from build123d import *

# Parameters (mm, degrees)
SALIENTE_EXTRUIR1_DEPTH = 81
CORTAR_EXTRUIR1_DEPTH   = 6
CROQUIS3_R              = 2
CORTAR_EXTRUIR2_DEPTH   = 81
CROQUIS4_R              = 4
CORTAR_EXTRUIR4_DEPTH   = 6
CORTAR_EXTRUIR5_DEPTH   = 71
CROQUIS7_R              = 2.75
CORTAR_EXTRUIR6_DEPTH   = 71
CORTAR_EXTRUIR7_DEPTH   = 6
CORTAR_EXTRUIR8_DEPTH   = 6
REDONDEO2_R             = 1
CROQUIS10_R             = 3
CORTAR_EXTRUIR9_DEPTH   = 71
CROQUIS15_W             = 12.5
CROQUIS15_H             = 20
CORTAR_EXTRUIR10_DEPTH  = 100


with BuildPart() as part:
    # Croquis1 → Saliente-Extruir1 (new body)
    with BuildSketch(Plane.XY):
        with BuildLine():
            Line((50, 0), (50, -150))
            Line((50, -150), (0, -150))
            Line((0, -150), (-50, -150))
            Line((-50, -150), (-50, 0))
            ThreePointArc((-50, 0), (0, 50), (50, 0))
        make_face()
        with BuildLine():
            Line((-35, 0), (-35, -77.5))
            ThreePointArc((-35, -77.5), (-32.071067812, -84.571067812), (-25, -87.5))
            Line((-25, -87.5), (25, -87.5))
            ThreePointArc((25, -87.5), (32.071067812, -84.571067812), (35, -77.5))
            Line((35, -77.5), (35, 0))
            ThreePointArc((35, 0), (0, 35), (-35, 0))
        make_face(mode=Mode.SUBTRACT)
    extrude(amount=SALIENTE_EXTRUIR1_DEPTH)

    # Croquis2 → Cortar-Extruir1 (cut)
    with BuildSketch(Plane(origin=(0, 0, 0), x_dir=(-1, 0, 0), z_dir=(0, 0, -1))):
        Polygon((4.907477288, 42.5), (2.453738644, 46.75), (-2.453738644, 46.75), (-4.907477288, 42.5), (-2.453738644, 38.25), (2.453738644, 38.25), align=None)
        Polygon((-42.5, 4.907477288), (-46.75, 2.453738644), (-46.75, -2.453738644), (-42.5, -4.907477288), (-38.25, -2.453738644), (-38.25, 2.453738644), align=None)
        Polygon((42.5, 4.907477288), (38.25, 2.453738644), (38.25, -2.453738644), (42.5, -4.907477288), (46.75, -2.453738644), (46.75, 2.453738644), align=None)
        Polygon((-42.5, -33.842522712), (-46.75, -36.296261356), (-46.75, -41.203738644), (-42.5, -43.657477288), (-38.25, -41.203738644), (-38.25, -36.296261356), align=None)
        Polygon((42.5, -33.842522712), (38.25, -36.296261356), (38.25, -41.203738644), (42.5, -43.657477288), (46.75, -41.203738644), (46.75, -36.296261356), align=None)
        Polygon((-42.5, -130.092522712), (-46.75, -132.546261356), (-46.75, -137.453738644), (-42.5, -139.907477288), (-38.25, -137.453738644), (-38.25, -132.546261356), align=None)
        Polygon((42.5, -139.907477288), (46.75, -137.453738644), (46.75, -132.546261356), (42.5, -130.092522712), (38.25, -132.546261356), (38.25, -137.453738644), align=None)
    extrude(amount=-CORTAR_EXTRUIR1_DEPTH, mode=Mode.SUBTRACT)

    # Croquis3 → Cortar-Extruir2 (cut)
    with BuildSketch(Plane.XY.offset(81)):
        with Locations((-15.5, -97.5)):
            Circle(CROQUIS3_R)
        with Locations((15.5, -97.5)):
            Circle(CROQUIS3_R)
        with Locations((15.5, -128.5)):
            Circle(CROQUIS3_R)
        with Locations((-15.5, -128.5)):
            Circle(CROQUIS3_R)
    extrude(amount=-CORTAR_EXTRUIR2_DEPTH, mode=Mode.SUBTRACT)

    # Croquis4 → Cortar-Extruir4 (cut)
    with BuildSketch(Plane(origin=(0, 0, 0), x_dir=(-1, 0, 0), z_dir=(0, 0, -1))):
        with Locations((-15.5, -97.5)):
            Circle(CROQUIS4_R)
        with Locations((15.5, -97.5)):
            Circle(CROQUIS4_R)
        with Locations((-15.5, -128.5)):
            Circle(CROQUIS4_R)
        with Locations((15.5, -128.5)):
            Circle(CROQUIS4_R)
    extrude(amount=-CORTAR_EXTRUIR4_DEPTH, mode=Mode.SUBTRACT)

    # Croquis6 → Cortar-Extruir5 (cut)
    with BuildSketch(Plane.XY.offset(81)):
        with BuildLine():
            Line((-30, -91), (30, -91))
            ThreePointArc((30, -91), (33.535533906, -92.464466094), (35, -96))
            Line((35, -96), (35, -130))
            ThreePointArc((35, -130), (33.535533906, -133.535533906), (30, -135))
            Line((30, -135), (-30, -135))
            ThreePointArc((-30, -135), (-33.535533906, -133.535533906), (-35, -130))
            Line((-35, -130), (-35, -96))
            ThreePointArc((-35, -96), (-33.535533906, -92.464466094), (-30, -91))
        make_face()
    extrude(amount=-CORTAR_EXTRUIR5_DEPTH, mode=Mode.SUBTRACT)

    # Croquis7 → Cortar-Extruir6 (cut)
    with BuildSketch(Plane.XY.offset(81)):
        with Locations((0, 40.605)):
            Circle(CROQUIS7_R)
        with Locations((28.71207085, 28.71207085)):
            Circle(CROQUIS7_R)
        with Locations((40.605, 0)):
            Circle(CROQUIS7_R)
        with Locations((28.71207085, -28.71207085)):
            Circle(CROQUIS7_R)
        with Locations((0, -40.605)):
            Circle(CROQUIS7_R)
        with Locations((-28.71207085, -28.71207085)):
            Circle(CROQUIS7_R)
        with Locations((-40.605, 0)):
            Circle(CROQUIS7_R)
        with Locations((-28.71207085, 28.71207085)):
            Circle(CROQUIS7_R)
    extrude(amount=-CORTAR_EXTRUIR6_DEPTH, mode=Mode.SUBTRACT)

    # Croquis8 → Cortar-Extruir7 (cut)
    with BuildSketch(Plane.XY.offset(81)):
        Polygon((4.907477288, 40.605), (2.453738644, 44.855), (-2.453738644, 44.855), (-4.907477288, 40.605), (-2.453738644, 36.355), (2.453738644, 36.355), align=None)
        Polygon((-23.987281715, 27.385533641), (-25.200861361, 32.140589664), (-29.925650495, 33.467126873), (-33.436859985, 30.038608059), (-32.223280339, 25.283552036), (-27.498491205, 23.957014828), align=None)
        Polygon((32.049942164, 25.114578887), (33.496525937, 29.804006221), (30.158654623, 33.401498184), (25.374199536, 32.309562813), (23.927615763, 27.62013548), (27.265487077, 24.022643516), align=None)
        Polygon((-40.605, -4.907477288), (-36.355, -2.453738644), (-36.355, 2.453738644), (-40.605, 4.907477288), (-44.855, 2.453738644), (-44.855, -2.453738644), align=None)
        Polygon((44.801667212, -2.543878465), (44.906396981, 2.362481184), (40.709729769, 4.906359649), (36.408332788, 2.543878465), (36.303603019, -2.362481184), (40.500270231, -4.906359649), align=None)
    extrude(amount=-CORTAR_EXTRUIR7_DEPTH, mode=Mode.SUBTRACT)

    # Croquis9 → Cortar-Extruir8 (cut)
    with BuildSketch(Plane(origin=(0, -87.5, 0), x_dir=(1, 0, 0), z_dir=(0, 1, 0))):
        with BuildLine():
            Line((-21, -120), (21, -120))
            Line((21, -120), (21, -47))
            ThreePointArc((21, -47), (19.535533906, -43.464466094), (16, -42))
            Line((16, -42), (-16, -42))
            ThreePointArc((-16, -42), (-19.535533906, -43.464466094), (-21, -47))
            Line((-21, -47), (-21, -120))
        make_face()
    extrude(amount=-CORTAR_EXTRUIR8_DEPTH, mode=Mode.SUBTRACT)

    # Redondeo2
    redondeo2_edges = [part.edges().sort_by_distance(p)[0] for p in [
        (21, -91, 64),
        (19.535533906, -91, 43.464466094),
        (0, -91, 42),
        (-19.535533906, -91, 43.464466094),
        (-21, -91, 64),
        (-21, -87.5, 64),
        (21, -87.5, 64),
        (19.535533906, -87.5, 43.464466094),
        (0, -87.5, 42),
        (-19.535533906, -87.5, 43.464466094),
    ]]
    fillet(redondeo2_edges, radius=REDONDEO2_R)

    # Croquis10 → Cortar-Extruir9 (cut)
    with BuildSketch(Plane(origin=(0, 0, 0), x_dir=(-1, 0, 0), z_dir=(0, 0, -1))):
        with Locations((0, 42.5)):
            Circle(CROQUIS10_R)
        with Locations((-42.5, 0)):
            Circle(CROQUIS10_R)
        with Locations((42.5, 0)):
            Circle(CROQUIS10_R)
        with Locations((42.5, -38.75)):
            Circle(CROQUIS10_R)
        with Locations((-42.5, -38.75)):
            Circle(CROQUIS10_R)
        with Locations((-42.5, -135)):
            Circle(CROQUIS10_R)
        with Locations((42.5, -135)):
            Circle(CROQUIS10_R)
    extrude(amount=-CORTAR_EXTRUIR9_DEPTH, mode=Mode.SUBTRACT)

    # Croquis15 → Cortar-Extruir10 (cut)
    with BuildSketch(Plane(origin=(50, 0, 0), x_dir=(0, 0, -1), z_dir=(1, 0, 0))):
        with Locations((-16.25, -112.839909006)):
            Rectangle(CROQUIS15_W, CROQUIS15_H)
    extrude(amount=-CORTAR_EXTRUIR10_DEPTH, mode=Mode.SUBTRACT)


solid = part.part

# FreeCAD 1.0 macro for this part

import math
import FreeCAD as App
import Part
import Sketcher

V = App.Vector
Q = App.Units.Quantity


def edges_at(feature, points):
    """Names of the edges that pass closest to the given points."""
    edges = feature.Shape.Edges
    near = lambda p: min(range(len(edges)), key=lambda i: edges[i].distToShape(Part.Vertex(*p))[0])
    return sorted({f"Edge{near(p) + 1}" for p in points})

doc = App.newDocument("Part")
body = doc.addObject("PartDesign::Body", "Body")

# Sketch on XY plane
sketch1 = body.newObject("Sketcher::SketchObject", "Sketch")
sketch1.AttachmentSupport = (doc.getObject("XY_Plane"), [""])
sketch1.MapMode = "FlatFace"
sketch1.addGeometry(Part.LineSegment(V(50, -150, 0), V(50, 0, 0)), False)
sketch1.addGeometry(Part.ArcOfCircle(Part.Circle(V(0, 0, 0), V(0, 0, 1), 50), math.radians(0), math.radians(180)), False)
sketch1.addGeometry(Part.LineSegment(V(-50, 0, 0), V(-50, -150, 0)), False)
sketch1.addGeometry(Part.LineSegment(V(-50, -150, 0), V(50, -150, 0)), False)
sketch1.addGeometry(Part.ArcOfCircle(Part.Circle(V(0, 0, 0), V(0, 0, 1), 35), math.radians(0), math.radians(180)), False)
sketch1.addGeometry(Part.LineSegment(V(35, 0, 0), V(35, -78, 0)), False)
sketch1.addGeometry(Part.ArcOfCircle(Part.Circle(V(25, -78, 0), V(0, 0, 1), 10), math.radians(-90), math.radians(0)), False)
sketch1.addGeometry(Part.LineSegment(V(25, -88, 0), V(-25, -88, 0)), False)
sketch1.addGeometry(Part.ArcOfCircle(Part.Circle(V(-25, -78, 0), V(0, 0, 1), 10), math.radians(180), math.radians(270)), False)
sketch1.addGeometry(Part.LineSegment(V(-35, -78, 0), V(-35, 0, 0)), False)
sketch1.addConstraint(Sketcher.Constraint("Tangent", 0, 2, 1, 1))
sketch1.addConstraint(Sketcher.Constraint("Tangent", 1, 2, 2, 1))
sketch1.addConstraint(Sketcher.Constraint("Coincident", 2, 2, 3, 1))
sketch1.addConstraint(Sketcher.Constraint("Coincident", 3, 2, 0, 1))
sketch1.addConstraint(Sketcher.Constraint("Tangent", 4, 1, 5, 1))
sketch1.addConstraint(Sketcher.Constraint("Tangent", 5, 2, 6, 2))
sketch1.addConstraint(Sketcher.Constraint("Tangent", 6, 1, 7, 1))
sketch1.addConstraint(Sketcher.Constraint("Tangent", 7, 2, 8, 2))
sketch1.addConstraint(Sketcher.Constraint("Tangent", 8, 1, 9, 1))
sketch1.addConstraint(Sketcher.Constraint("Tangent", 9, 2, 4, 2))
sketch1.addConstraint(Sketcher.Constraint("Vertical", 0))
sketch1.addConstraint(Sketcher.Constraint("Vertical", 2))
sketch1.addConstraint(Sketcher.Constraint("Horizontal", 3))
sketch1.addConstraint(Sketcher.Constraint("Vertical", 5))
sketch1.addConstraint(Sketcher.Constraint("Horizontal", 7))
sketch1.addConstraint(Sketcher.Constraint("Vertical", 9))
sketch1.addConstraint(Sketcher.Constraint("Coincident", 1, 3, -1, 1))
sketch1.addConstraint(Sketcher.Constraint("Coincident", 4, 3, -1, 1))
sketch1.addConstraint(Sketcher.Constraint("Equal", 6, 8))
sketch1.addConstraint(Sketcher.Constraint("Radius", 1, 50.0))
sketch1.addConstraint(Sketcher.Constraint("Radius", 4, 35.0))
sketch1.addConstraint(Sketcher.Constraint("Radius", 6, 10.0))
sketch1.addConstraint(Sketcher.Constraint("DistanceY", 0, 1, 0, 2, 150.0))
sketch1.addConstraint(Sketcher.Constraint("DistanceY", 5, 2, 5, 1, 77.5))
pad1 = body.newObject("PartDesign::Pad", "Pad")
pad1.Profile = sketch1
pad1.Length = 81

# Sketch on XY plane
sketch2 = body.newObject("Sketcher::SketchObject", "Sketch001")
sketch2.AttachmentSupport = (doc.getObject("XY_Plane"), [""])
sketch2.MapMode = "FlatFace"
sketch2.addGeometry(Part.LineSegment(V(-4.9, 42.5, 0), V(-2.5, 46.8, 0)), False)
sketch2.addGeometry(Part.LineSegment(V(-2.5, 46.8, 0), V(2.5, 46.8, 0)), False)
sketch2.addGeometry(Part.LineSegment(V(2.5, 46.8, 0), V(4.9, 42.5, 0)), False)
sketch2.addGeometry(Part.LineSegment(V(4.9, 42.5, 0), V(2.5, 38.2, 0)), False)
sketch2.addGeometry(Part.LineSegment(V(2.5, 38.2, 0), V(-2.5, 38.2, 0)), False)
sketch2.addGeometry(Part.LineSegment(V(-2.5, 38.2, 0), V(-4.9, 42.5, 0)), False)
sketch2.addGeometry(Part.LineSegment(V(42.5, 4.9, 0), V(46.8, 2.5, 0)), False)
sketch2.addGeometry(Part.LineSegment(V(46.8, 2.5, 0), V(46.8, -2.5, 0)), False)
sketch2.addGeometry(Part.LineSegment(V(46.8, -2.5, 0), V(42.5, -4.9, 0)), False)
sketch2.addGeometry(Part.LineSegment(V(42.5, -4.9, 0), V(38.2, -2.5, 0)), False)
sketch2.addGeometry(Part.LineSegment(V(38.2, -2.5, 0), V(38.2, 2.5, 0)), False)
sketch2.addGeometry(Part.LineSegment(V(38.2, 2.5, 0), V(42.5, 4.9, 0)), False)
sketch2.addGeometry(Part.LineSegment(V(-42.5, 4.9, 0), V(-38.2, 2.5, 0)), False)
sketch2.addGeometry(Part.LineSegment(V(-38.2, 2.5, 0), V(-38.2, -2.5, 0)), False)
sketch2.addGeometry(Part.LineSegment(V(-38.2, -2.5, 0), V(-42.5, -4.9, 0)), False)
sketch2.addGeometry(Part.LineSegment(V(-42.5, -4.9, 0), V(-46.8, -2.5, 0)), False)
sketch2.addGeometry(Part.LineSegment(V(-46.8, -2.5, 0), V(-46.8, 2.5, 0)), False)
sketch2.addGeometry(Part.LineSegment(V(-46.8, 2.5, 0), V(-42.5, 4.9, 0)), False)
sketch2.addGeometry(Part.LineSegment(V(42.5, -33.8, 0), V(46.8, -36.3, 0)), False)
sketch2.addGeometry(Part.LineSegment(V(46.8, -36.3, 0), V(46.8, -41.2, 0)), False)
sketch2.addGeometry(Part.LineSegment(V(46.8, -41.2, 0), V(42.5, -43.7, 0)), False)
sketch2.addGeometry(Part.LineSegment(V(42.5, -43.7, 0), V(38.2, -41.2, 0)), False)
sketch2.addGeometry(Part.LineSegment(V(38.2, -41.2, 0), V(38.2, -36.3, 0)), False)
sketch2.addGeometry(Part.LineSegment(V(38.2, -36.3, 0), V(42.5, -33.8, 0)), False)
sketch2.addGeometry(Part.LineSegment(V(-42.5, -33.8, 0), V(-38.2, -36.3, 0)), False)
sketch2.addGeometry(Part.LineSegment(V(-38.2, -36.3, 0), V(-38.2, -41.2, 0)), False)
sketch2.addGeometry(Part.LineSegment(V(-38.2, -41.2, 0), V(-42.5, -43.7, 0)), False)
sketch2.addGeometry(Part.LineSegment(V(-42.5, -43.7, 0), V(-46.8, -41.2, 0)), False)
sketch2.addGeometry(Part.LineSegment(V(-46.8, -41.2, 0), V(-46.8, -36.3, 0)), False)
sketch2.addGeometry(Part.LineSegment(V(-46.8, -36.3, 0), V(-42.5, -33.8, 0)), False)
sketch2.addGeometry(Part.LineSegment(V(42.5, -130.1, 0), V(46.8, -132.5, 0)), False)
sketch2.addGeometry(Part.LineSegment(V(46.8, -132.5, 0), V(46.8, -137.5, 0)), False)
sketch2.addGeometry(Part.LineSegment(V(46.8, -137.5, 0), V(42.5, -139.9, 0)), False)
sketch2.addGeometry(Part.LineSegment(V(42.5, -139.9, 0), V(38.2, -137.5, 0)), False)
sketch2.addGeometry(Part.LineSegment(V(38.2, -137.5, 0), V(38.2, -132.5, 0)), False)
sketch2.addGeometry(Part.LineSegment(V(38.2, -132.5, 0), V(42.5, -130.1, 0)), False)
sketch2.addGeometry(Part.LineSegment(V(-42.5, -139.9, 0), V(-46.8, -137.5, 0)), False)
sketch2.addGeometry(Part.LineSegment(V(-46.8, -137.5, 0), V(-46.8, -132.5, 0)), False)
sketch2.addGeometry(Part.LineSegment(V(-46.8, -132.5, 0), V(-42.5, -130.1, 0)), False)
sketch2.addGeometry(Part.LineSegment(V(-42.5, -130.1, 0), V(-38.2, -132.5, 0)), False)
sketch2.addGeometry(Part.LineSegment(V(-38.2, -132.5, 0), V(-38.2, -137.5, 0)), False)
sketch2.addGeometry(Part.LineSegment(V(-38.2, -137.5, 0), V(-42.5, -139.9, 0)), False)
sketch2.addConstraint(Sketcher.Constraint("Coincident", 0, 2, 1, 1))
sketch2.addConstraint(Sketcher.Constraint("Coincident", 1, 2, 2, 1))
sketch2.addConstraint(Sketcher.Constraint("Coincident", 2, 2, 3, 1))
sketch2.addConstraint(Sketcher.Constraint("Coincident", 3, 2, 4, 1))
sketch2.addConstraint(Sketcher.Constraint("Coincident", 4, 2, 5, 1))
sketch2.addConstraint(Sketcher.Constraint("Coincident", 5, 2, 0, 1))
sketch2.addConstraint(Sketcher.Constraint("Coincident", 6, 2, 7, 1))
sketch2.addConstraint(Sketcher.Constraint("Coincident", 7, 2, 8, 1))
sketch2.addConstraint(Sketcher.Constraint("Coincident", 8, 2, 9, 1))
sketch2.addConstraint(Sketcher.Constraint("Coincident", 9, 2, 10, 1))
sketch2.addConstraint(Sketcher.Constraint("Coincident", 10, 2, 11, 1))
sketch2.addConstraint(Sketcher.Constraint("Coincident", 11, 2, 6, 1))
sketch2.addConstraint(Sketcher.Constraint("Coincident", 12, 2, 13, 1))
sketch2.addConstraint(Sketcher.Constraint("Coincident", 13, 2, 14, 1))
sketch2.addConstraint(Sketcher.Constraint("Coincident", 14, 2, 15, 1))
sketch2.addConstraint(Sketcher.Constraint("Coincident", 15, 2, 16, 1))
sketch2.addConstraint(Sketcher.Constraint("Coincident", 16, 2, 17, 1))
sketch2.addConstraint(Sketcher.Constraint("Coincident", 17, 2, 12, 1))
sketch2.addConstraint(Sketcher.Constraint("Coincident", 18, 2, 19, 1))
sketch2.addConstraint(Sketcher.Constraint("Coincident", 19, 2, 20, 1))
sketch2.addConstraint(Sketcher.Constraint("Coincident", 20, 2, 21, 1))
sketch2.addConstraint(Sketcher.Constraint("Coincident", 21, 2, 22, 1))
sketch2.addConstraint(Sketcher.Constraint("Coincident", 22, 2, 23, 1))
sketch2.addConstraint(Sketcher.Constraint("Coincident", 23, 2, 18, 1))
sketch2.addConstraint(Sketcher.Constraint("Coincident", 24, 2, 25, 1))
sketch2.addConstraint(Sketcher.Constraint("Coincident", 25, 2, 26, 1))
sketch2.addConstraint(Sketcher.Constraint("Coincident", 26, 2, 27, 1))
sketch2.addConstraint(Sketcher.Constraint("Coincident", 27, 2, 28, 1))
sketch2.addConstraint(Sketcher.Constraint("Coincident", 28, 2, 29, 1))
sketch2.addConstraint(Sketcher.Constraint("Coincident", 29, 2, 24, 1))
sketch2.addConstraint(Sketcher.Constraint("Coincident", 30, 2, 31, 1))
sketch2.addConstraint(Sketcher.Constraint("Coincident", 31, 2, 32, 1))
sketch2.addConstraint(Sketcher.Constraint("Coincident", 32, 2, 33, 1))
sketch2.addConstraint(Sketcher.Constraint("Coincident", 33, 2, 34, 1))
sketch2.addConstraint(Sketcher.Constraint("Coincident", 34, 2, 35, 1))
sketch2.addConstraint(Sketcher.Constraint("Coincident", 35, 2, 30, 1))
sketch2.addConstraint(Sketcher.Constraint("Coincident", 36, 2, 37, 1))
sketch2.addConstraint(Sketcher.Constraint("Coincident", 37, 2, 38, 1))
sketch2.addConstraint(Sketcher.Constraint("Coincident", 38, 2, 39, 1))
sketch2.addConstraint(Sketcher.Constraint("Coincident", 39, 2, 40, 1))
sketch2.addConstraint(Sketcher.Constraint("Coincident", 40, 2, 41, 1))
sketch2.addConstraint(Sketcher.Constraint("Coincident", 41, 2, 36, 1))
sketch2.addConstraint(Sketcher.Constraint("Horizontal", 1))
sketch2.addConstraint(Sketcher.Constraint("Horizontal", 4))
sketch2.addConstraint(Sketcher.Constraint("Vertical", 7))
sketch2.addConstraint(Sketcher.Constraint("Vertical", 10))
sketch2.addConstraint(Sketcher.Constraint("Vertical", 13))
sketch2.addConstraint(Sketcher.Constraint("Vertical", 16))
sketch2.addConstraint(Sketcher.Constraint("Vertical", 19))
sketch2.addConstraint(Sketcher.Constraint("Vertical", 22))
sketch2.addConstraint(Sketcher.Constraint("Vertical", 25))
sketch2.addConstraint(Sketcher.Constraint("Vertical", 28))
sketch2.addConstraint(Sketcher.Constraint("Vertical", 31))
sketch2.addConstraint(Sketcher.Constraint("Vertical", 34))
sketch2.addConstraint(Sketcher.Constraint("Vertical", 37))
sketch2.addConstraint(Sketcher.Constraint("Vertical", 40))
sketch2.addConstraint(Sketcher.Constraint("Symmetric", 9, 2, 12, 2, -1, 1))
sketch2.addConstraint(Sketcher.Constraint("Symmetric", 11, 2, 14, 2, -1, 1))
sketch2.addConstraint(Sketcher.Constraint("Symmetric", 6, 2, 15, 2, -1, 1))
sketch2.addConstraint(Sketcher.Constraint("Symmetric", 8, 2, 17, 2, -1, 1))
sketch2.addConstraint(Sketcher.Constraint("Symmetric", 2, 2, 5, 2, -2))
sketch2.addConstraint(Sketcher.Constraint("Symmetric", 8, 2, 14, 2, -2))
sketch2.addConstraint(Sketcher.Constraint("Symmetric", 22, 2, 24, 2, -2))
sketch2.addConstraint(Sketcher.Constraint("Symmetric", 20, 2, 26, 2, -2))
sketch2.addConstraint(Sketcher.Constraint("Symmetric", 19, 2, 27, 2, -2))
sketch2.addConstraint(Sketcher.Constraint("Symmetric", 23, 2, 29, 2, -2))
sketch2.addConstraint(Sketcher.Constraint("Symmetric", 31, 2, 36, 2, -2))
sketch2.addConstraint(Sketcher.Constraint("Symmetric", 35, 2, 38, 2, -2))
sketch2.addConstraint(Sketcher.Constraint("Symmetric", 34, 2, 39, 2, -2))
sketch2.addConstraint(Sketcher.Constraint("Symmetric", 32, 2, 41, 2, -2))
sketch2.addConstraint(Sketcher.Constraint("Parallel", 0, 3))
sketch2.addConstraint(Sketcher.Constraint("Parallel", 2, 5))
sketch2.addConstraint(Sketcher.Constraint("Perpendicular", 3, 6))
sketch2.addConstraint(Sketcher.Constraint("Perpendicular", 5, 8))
sketch2.addConstraint(Sketcher.Constraint("Parallel", 6, 9))
sketch2.addConstraint(Sketcher.Constraint("Parallel", 8, 11))
sketch2.addConstraint(Sketcher.Constraint("Parallel", 11, 14))
sketch2.addConstraint(Sketcher.Constraint("Parallel", 14, 17))
sketch2.addConstraint(Sketcher.Constraint("Parallel", 15, 18))
sketch2.addConstraint(Sketcher.Constraint("Parallel", 17, 20))
sketch2.addConstraint(Sketcher.Constraint("Parallel", 18, 21))
sketch2.addConstraint(Sketcher.Constraint("Parallel", 20, 23))
sketch2.addConstraint(Sketcher.Constraint("Parallel", 21, 24))
sketch2.addConstraint(Sketcher.Constraint("Parallel", 23, 26))
sketch2.addConstraint(Sketcher.Constraint("Parallel", 26, 29))
sketch2.addConstraint(Sketcher.Constraint("Parallel", 27, 30))
sketch2.addConstraint(Sketcher.Constraint("Parallel", 29, 32))
sketch2.addConstraint(Sketcher.Constraint("Parallel", 30, 33))
sketch2.addConstraint(Sketcher.Constraint("Parallel", 32, 35))
sketch2.addConstraint(Sketcher.Constraint("Parallel", 35, 38))
sketch2.addConstraint(Sketcher.Constraint("Parallel", 38, 41))
sketch2.addConstraint(Sketcher.Constraint("Horizontal", 7, 2, 9, 2))
sketch2.addConstraint(Sketcher.Constraint("Horizontal", 19, 2, 21, 2))
sketch2.addConstraint(Sketcher.Constraint("Horizontal", 18, 2, 22, 2))
sketch2.addConstraint(Sketcher.Constraint("Horizontal", 31, 2, 33, 2))
sketch2.addConstraint(Sketcher.Constraint("Horizontal", 30, 2, 34, 2))
sketch2.addConstraint(Sketcher.Constraint("Vertical", 1, 2, 3, 2))
sketch2.addConstraint(Sketcher.Constraint("Vertical", 7, 2, 18, 2))
sketch2.addConstraint(Sketcher.Constraint("Vertical", 11, 2, 20, 2))
sketch2.addConstraint(Sketcher.Constraint("Vertical", 19, 2, 30, 2))
sketch2.addConstraint(Sketcher.Constraint("Vertical", 23, 2, 32, 2))
sketch2.addConstraint(Sketcher.Constraint("Equal", 4, 7))
sketch2.addConstraint(Sketcher.Constraint("Equal", 16, 19))
sketch2.addConstraint(Sketcher.Constraint("Equal", 28, 31))
sketch2.addConstraint(Sketcher.Constraint("Equal", 5, 6))
sketch2.addConstraint(Sketcher.Constraint("Angle", 0, Q("60 deg")))
sketch2.addConstraint(Sketcher.Constraint("DistanceX", 36, 2, 33, 2, 85.0))
sketch2.addConstraint(Sketcher.Constraint("DistanceY", -1, 1, 2, 2, 42.5))
sketch2.addConstraint(Sketcher.Constraint("DistanceY", 3, 2, 1, 2, 8.5))
sketch2.addConstraint(Sketcher.Constraint("DistanceY", 18, 2, 6, 2, 38.75))
sketch2.addConstraint(Sketcher.Constraint("DistanceY", 30, 2, 18, 2, 96.25))
sketch2.addConstraint(Sketcher.Constraint("DistanceX", 1, 1, 1, 2, 4.907477))
pocket1 = body.newObject("PartDesign::Pocket", "Pocket")
pocket1.Profile = sketch2
pocket1.Length = 6
pocket1.Reversed = True

# Sketch on XY plane
sketch3 = body.newObject("Sketcher::SketchObject", "Sketch002")
sketch3.AttachmentSupport = (doc.getObject("XY_Plane"), [""])
sketch3.MapMode = "FlatFace"
sketch3.AttachmentOffset = App.Placement(V(0, 0, 81), App.Rotation())
sketch3.addGeometry(Part.Circle(V(-15.5, -97.5, 0), V(0, 0, 1), 2), False)
sketch3.addGeometry(Part.Circle(V(15.5, -97.5, 0), V(0, 0, 1), 2), False)
sketch3.addGeometry(Part.Circle(V(15.5, -128.5, 0), V(0, 0, 1), 2), False)
sketch3.addGeometry(Part.Circle(V(-15.5, -128.5, 0), V(0, 0, 1), 2), False)
sketch3.addConstraint(Sketcher.Constraint("Equal", 0, 1))
sketch3.addConstraint(Sketcher.Constraint("Equal", 1, 2))
sketch3.addConstraint(Sketcher.Constraint("Equal", 2, 3))
sketch3.addConstraint(Sketcher.Constraint("Symmetric", 0, 3, 1, 3, -2))
sketch3.addConstraint(Sketcher.Constraint("Symmetric", 2, 3, 3, 3, -2))
sketch3.addConstraint(Sketcher.Constraint("Vertical", 1, 3, 2, 3))
sketch3.addConstraint(Sketcher.Constraint("Diameter", 0, 4.0))
sketch3.addConstraint(Sketcher.Constraint("DistanceX", 0, 3, 1, 3, 31.0))
sketch3.addConstraint(Sketcher.Constraint("DistanceY", 2, 3, 1, 3, 31.0))
sketch3.addConstraint(Sketcher.Constraint("DistanceY", 0, 3, -1, 1, 97.5))
pocket2 = body.newObject("PartDesign::Pocket", "Pocket001")
pocket2.Profile = sketch3
pocket2.Length = 81

# Sketch on XY plane
sketch4 = body.newObject("Sketcher::SketchObject", "Sketch003")
sketch4.AttachmentSupport = (doc.getObject("XY_Plane"), [""])
sketch4.MapMode = "FlatFace"
sketch4.addGeometry(Part.Circle(V(15.5, -97.5, 0), V(0, 0, 1), 4), False)
sketch4.addGeometry(Part.Circle(V(-15.5, -97.5, 0), V(0, 0, 1), 4), False)
sketch4.addGeometry(Part.Circle(V(15.5, -128.5, 0), V(0, 0, 1), 4), False)
sketch4.addGeometry(Part.Circle(V(-15.5, -128.5, 0), V(0, 0, 1), 4), False)
sketch4.addConstraint(Sketcher.Constraint("Equal", 0, 1))
sketch4.addConstraint(Sketcher.Constraint("Equal", 1, 2))
sketch4.addConstraint(Sketcher.Constraint("Equal", 2, 3))
sketch4.addConstraint(Sketcher.Constraint("Symmetric", 0, 3, 1, 3, -2))
sketch4.addConstraint(Sketcher.Constraint("Symmetric", 2, 3, 3, 3, -2))
sketch4.addConstraint(Sketcher.Constraint("Vertical", 0, 3, 2, 3))
sketch4.addConstraint(Sketcher.Constraint("Diameter", 0, 8.0))
sketch4.addConstraint(Sketcher.Constraint("DistanceX", 1, 3, 0, 3, 31.0))
sketch4.addConstraint(Sketcher.Constraint("DistanceY", 2, 3, 0, 3, 31.0))
sketch4.addConstraint(Sketcher.Constraint("DistanceY", 0, 3, -1, 1, 97.5))
pocket3 = body.newObject("PartDesign::Pocket", "Pocket002")
pocket3.Profile = sketch4
pocket3.Length = 6
pocket3.Reversed = True

# Sketch on XY plane
sketch5 = body.newObject("Sketcher::SketchObject", "Sketch004")
sketch5.AttachmentSupport = (doc.getObject("XY_Plane"), [""])
sketch5.MapMode = "FlatFace"
sketch5.AttachmentOffset = App.Placement(V(0, 0, 81), App.Rotation())
sketch5.addGeometry(Part.LineSegment(V(30, -91, 0), V(-30, -91, 0)), False)
sketch5.addGeometry(Part.ArcOfCircle(Part.Circle(V(-30, -96, 0), V(0, 0, 1), 5), math.radians(90), math.radians(180)), False)
sketch5.addGeometry(Part.LineSegment(V(-35, -96, 0), V(-35, -130, 0)), False)
sketch5.addGeometry(Part.ArcOfCircle(Part.Circle(V(-30, -130, 0), V(0, 0, 1), 5), math.radians(180), math.radians(270)), False)
sketch5.addGeometry(Part.LineSegment(V(-30, -135, 0), V(30, -135, 0)), False)
sketch5.addGeometry(Part.ArcOfCircle(Part.Circle(V(30, -130, 0), V(0, 0, 1), 5), math.radians(-90), math.radians(0)), False)
sketch5.addGeometry(Part.LineSegment(V(35, -130, 0), V(35, -96, 0)), False)
sketch5.addGeometry(Part.ArcOfCircle(Part.Circle(V(30, -96, 0), V(0, 0, 1), 5), math.radians(0), math.radians(90)), False)
sketch5.addConstraint(Sketcher.Constraint("Tangent", 0, 2, 1, 1))
sketch5.addConstraint(Sketcher.Constraint("Tangent", 1, 2, 2, 1))
sketch5.addConstraint(Sketcher.Constraint("Tangent", 2, 2, 3, 1))
sketch5.addConstraint(Sketcher.Constraint("Tangent", 3, 2, 4, 1))
sketch5.addConstraint(Sketcher.Constraint("Tangent", 4, 2, 5, 1))
sketch5.addConstraint(Sketcher.Constraint("Tangent", 5, 2, 6, 1))
sketch5.addConstraint(Sketcher.Constraint("Tangent", 6, 2, 7, 1))
sketch5.addConstraint(Sketcher.Constraint("Tangent", 7, 2, 0, 1))
sketch5.addConstraint(Sketcher.Constraint("Horizontal", 0))
sketch5.addConstraint(Sketcher.Constraint("Vertical", 2))
sketch5.addConstraint(Sketcher.Constraint("Horizontal", 4))
sketch5.addConstraint(Sketcher.Constraint("Vertical", 6))
sketch5.addConstraint(Sketcher.Constraint("Equal", 1, 3))
sketch5.addConstraint(Sketcher.Constraint("Equal", 3, 5))
sketch5.addConstraint(Sketcher.Constraint("Equal", 5, 7))
sketch5.addConstraint(Sketcher.Constraint("Radius", 1, 5.0))
sketch5.addConstraint(Sketcher.Constraint("DistanceX", 0, 2, 0, 1, 60.0))
sketch5.addConstraint(Sketcher.Constraint("DistanceY", 2, 2, 2, 1, 34.0))
sketch5.addConstraint(Sketcher.Constraint("DistanceX", 1, 3, -1, 1, 30.0))
sketch5.addConstraint(Sketcher.Constraint("DistanceY", 1, 3, -1, 1, 96.0))
pocket4 = body.newObject("PartDesign::Pocket", "Pocket003")
pocket4.Profile = sketch5
pocket4.Length = 71

# Sketch on XY plane
sketch6 = body.newObject("Sketcher::SketchObject", "Sketch005")
sketch6.AttachmentSupport = (doc.getObject("XY_Plane"), [""])
sketch6.MapMode = "FlatFace"
sketch6.AttachmentOffset = App.Placement(V(0, 0, 81), App.Rotation())
sketch6.addGeometry(Part.Circle(V(0, 40.6, 0), V(0, 0, 1), 2.8), False)
sketch6.addGeometry(Part.Circle(V(28.7, 28.7, 0), V(0, 0, 1), 2.8), False)
sketch6.addGeometry(Part.Circle(V(40.6, 0, 0), V(0, 0, 1), 2.8), False)
sketch6.addGeometry(Part.Circle(V(28.7, -28.7, 0), V(0, 0, 1), 2.8), False)
sketch6.addGeometry(Part.Circle(V(0, -40.6, 0), V(0, 0, 1), 2.8), False)
sketch6.addGeometry(Part.Circle(V(-28.7, -28.7, 0), V(0, 0, 1), 2.8), False)
sketch6.addGeometry(Part.Circle(V(-40.6, 0, 0), V(0, 0, 1), 2.8), False)
sketch6.addGeometry(Part.Circle(V(-28.7, 28.7, 0), V(0, 0, 1), 2.8), False)
sketch6.addConstraint(Sketcher.Constraint("Equal", 0, 1))
sketch6.addConstraint(Sketcher.Constraint("Equal", 1, 2))
sketch6.addConstraint(Sketcher.Constraint("Equal", 2, 3))
sketch6.addConstraint(Sketcher.Constraint("Equal", 3, 4))
sketch6.addConstraint(Sketcher.Constraint("Equal", 4, 5))
sketch6.addConstraint(Sketcher.Constraint("Equal", 5, 6))
sketch6.addConstraint(Sketcher.Constraint("Equal", 6, 7))
sketch6.addConstraint(Sketcher.Constraint("Symmetric", 0, 3, 4, 3, -1, 1))
sketch6.addConstraint(Sketcher.Constraint("Symmetric", 1, 3, 5, 3, -1, 1))
sketch6.addConstraint(Sketcher.Constraint("Symmetric", 2, 3, 6, 3, -1, 1))
sketch6.addConstraint(Sketcher.Constraint("Symmetric", 3, 3, 7, 3, -1, 1))
sketch6.addConstraint(Sketcher.Constraint("Symmetric", 3, 3, 5, 3, -2))
sketch6.addConstraint(Sketcher.Constraint("PointOnObject", 0, 3, -2))
sketch6.addConstraint(Sketcher.Constraint("PointOnObject", 2, 3, -1))
sketch6.addConstraint(Sketcher.Constraint("Diameter", 0, 5.5))
sketch6.addConstraint(Sketcher.Constraint("DistanceY", 4, 3, 0, 3, 81.21))
sketch6.addConstraint(Sketcher.Constraint("DistanceX", -1, 1, 2, 3, 40.605))
sketch6.addConstraint(Sketcher.Constraint("DistanceX", -1, 1, 1, 3, 28.712071))
sketch6.addConstraint(Sketcher.Constraint("DistanceY", -1, 1, 1, 3, 28.712071))
pocket5 = body.newObject("PartDesign::Pocket", "Pocket004")
pocket5.Profile = sketch6
pocket5.Length = 71

# Sketch on XY plane
sketch7 = body.newObject("Sketcher::SketchObject", "Sketch006")
sketch7.AttachmentSupport = (doc.getObject("XY_Plane"), [""])
sketch7.MapMode = "FlatFace"
sketch7.AttachmentOffset = App.Placement(V(0, 0, 81), App.Rotation())
sketch7.addGeometry(Part.LineSegment(V(4.9, 40.6, 0), V(2.5, 44.9, 0)), False)
sketch7.addGeometry(Part.LineSegment(V(2.5, 44.9, 0), V(-2.5, 44.9, 0)), False)
sketch7.addGeometry(Part.LineSegment(V(-2.5, 44.9, 0), V(-4.9, 40.6, 0)), False)
sketch7.addGeometry(Part.LineSegment(V(-4.9, 40.6, 0), V(-2.5, 36.4, 0)), False)
sketch7.addGeometry(Part.LineSegment(V(-2.5, 36.4, 0), V(2.5, 36.4, 0)), False)
sketch7.addGeometry(Part.LineSegment(V(2.5, 36.4, 0), V(4.9, 40.6, 0)), False)
sketch7.addGeometry(Part.LineSegment(V(-24, 27.4, 0), V(-25.2, 32.1, 0)), False)
sketch7.addGeometry(Part.LineSegment(V(-25.2, 32.1, 0), V(-29.9, 33.5, 0)), False)
sketch7.addGeometry(Part.LineSegment(V(-29.9, 33.5, 0), V(-33.4, 30, 0)), False)
sketch7.addGeometry(Part.LineSegment(V(-33.4, 30, 0), V(-32.2, 25.3, 0)), False)
sketch7.addGeometry(Part.LineSegment(V(-32.2, 25.3, 0), V(-27.5, 24, 0)), False)
sketch7.addGeometry(Part.LineSegment(V(-27.5, 24, 0), V(-24, 27.4, 0)), False)
sketch7.addGeometry(Part.LineSegment(V(32, 25.1, 0), V(33.5, 29.8, 0)), False)
sketch7.addGeometry(Part.LineSegment(V(33.5, 29.8, 0), V(30.2, 33.4, 0)), False)
sketch7.addGeometry(Part.LineSegment(V(30.2, 33.4, 0), V(25.4, 32.3, 0)), False)
sketch7.addGeometry(Part.LineSegment(V(25.4, 32.3, 0), V(23.9, 27.6, 0)), False)
sketch7.addGeometry(Part.LineSegment(V(23.9, 27.6, 0), V(27.3, 24, 0)), False)
sketch7.addGeometry(Part.LineSegment(V(27.3, 24, 0), V(32, 25.1, 0)), False)
sketch7.addGeometry(Part.LineSegment(V(-40.6, -4.9, 0), V(-36.4, -2.5, 0)), False)
sketch7.addGeometry(Part.LineSegment(V(-36.4, -2.5, 0), V(-36.4, 2.5, 0)), False)
sketch7.addGeometry(Part.LineSegment(V(-36.4, 2.5, 0), V(-40.6, 4.9, 0)), False)
sketch7.addGeometry(Part.LineSegment(V(-40.6, 4.9, 0), V(-44.9, 2.5, 0)), False)
sketch7.addGeometry(Part.LineSegment(V(-44.9, 2.5, 0), V(-44.9, -2.5, 0)), False)
sketch7.addGeometry(Part.LineSegment(V(-44.9, -2.5, 0), V(-40.6, -4.9, 0)), False)
sketch7.addGeometry(Part.LineSegment(V(44.8, -2.5, 0), V(44.9, 2.4, 0)), False)
sketch7.addGeometry(Part.LineSegment(V(44.9, 2.4, 0), V(40.7, 4.9, 0)), False)
sketch7.addGeometry(Part.LineSegment(V(40.7, 4.9, 0), V(36.4, 2.5, 0)), False)
sketch7.addGeometry(Part.LineSegment(V(36.4, 2.5, 0), V(36.3, -2.4, 0)), False)
sketch7.addGeometry(Part.LineSegment(V(36.3, -2.4, 0), V(40.5, -4.9, 0)), False)
sketch7.addGeometry(Part.LineSegment(V(40.5, -4.9, 0), V(44.8, -2.5, 0)), False)
sketch7.addConstraint(Sketcher.Constraint("Coincident", 0, 2, 1, 1))
sketch7.addConstraint(Sketcher.Constraint("Coincident", 1, 2, 2, 1))
sketch7.addConstraint(Sketcher.Constraint("Coincident", 2, 2, 3, 1))
sketch7.addConstraint(Sketcher.Constraint("Coincident", 3, 2, 4, 1))
sketch7.addConstraint(Sketcher.Constraint("Coincident", 4, 2, 5, 1))
sketch7.addConstraint(Sketcher.Constraint("Coincident", 5, 2, 0, 1))
sketch7.addConstraint(Sketcher.Constraint("Coincident", 6, 2, 7, 1))
sketch7.addConstraint(Sketcher.Constraint("Coincident", 7, 2, 8, 1))
sketch7.addConstraint(Sketcher.Constraint("Coincident", 8, 2, 9, 1))
sketch7.addConstraint(Sketcher.Constraint("Coincident", 9, 2, 10, 1))
sketch7.addConstraint(Sketcher.Constraint("Coincident", 10, 2, 11, 1))
sketch7.addConstraint(Sketcher.Constraint("Coincident", 11, 2, 6, 1))
sketch7.addConstraint(Sketcher.Constraint("Coincident", 12, 2, 13, 1))
sketch7.addConstraint(Sketcher.Constraint("Coincident", 13, 2, 14, 1))
sketch7.addConstraint(Sketcher.Constraint("Coincident", 14, 2, 15, 1))
sketch7.addConstraint(Sketcher.Constraint("Coincident", 15, 2, 16, 1))
sketch7.addConstraint(Sketcher.Constraint("Coincident", 16, 2, 17, 1))
sketch7.addConstraint(Sketcher.Constraint("Coincident", 17, 2, 12, 1))
sketch7.addConstraint(Sketcher.Constraint("Coincident", 18, 2, 19, 1))
sketch7.addConstraint(Sketcher.Constraint("Coincident", 19, 2, 20, 1))
sketch7.addConstraint(Sketcher.Constraint("Coincident", 20, 2, 21, 1))
sketch7.addConstraint(Sketcher.Constraint("Coincident", 21, 2, 22, 1))
sketch7.addConstraint(Sketcher.Constraint("Coincident", 22, 2, 23, 1))
sketch7.addConstraint(Sketcher.Constraint("Coincident", 23, 2, 18, 1))
sketch7.addConstraint(Sketcher.Constraint("Coincident", 24, 2, 25, 1))
sketch7.addConstraint(Sketcher.Constraint("Coincident", 25, 2, 26, 1))
sketch7.addConstraint(Sketcher.Constraint("Coincident", 26, 2, 27, 1))
sketch7.addConstraint(Sketcher.Constraint("Coincident", 27, 2, 28, 1))
sketch7.addConstraint(Sketcher.Constraint("Coincident", 28, 2, 29, 1))
sketch7.addConstraint(Sketcher.Constraint("Coincident", 29, 2, 24, 1))
sketch7.addConstraint(Sketcher.Constraint("Horizontal", 1))
sketch7.addConstraint(Sketcher.Constraint("Horizontal", 4))
sketch7.addConstraint(Sketcher.Constraint("Vertical", 19))
sketch7.addConstraint(Sketcher.Constraint("Vertical", 22))
sketch7.addConstraint(Sketcher.Constraint("Symmetric", 2, 2, 5, 2, -2))
sketch7.addConstraint(Sketcher.Constraint("Symmetric", 20, 2, 23, 2, -1))
sketch7.addConstraint(Sketcher.Constraint("Parallel", 0, 3))
sketch7.addConstraint(Sketcher.Constraint("Parallel", 2, 5))
sketch7.addConstraint(Sketcher.Constraint("Parallel", 6, 9))
sketch7.addConstraint(Sketcher.Constraint("Parallel", 7, 10))
sketch7.addConstraint(Sketcher.Constraint("Parallel", 8, 11))
sketch7.addConstraint(Sketcher.Constraint("Parallel", 12, 15))
sketch7.addConstraint(Sketcher.Constraint("Parallel", 13, 16))
sketch7.addConstraint(Sketcher.Constraint("Parallel", 14, 17))
sketch7.addConstraint(Sketcher.Constraint("Perpendicular", 3, 18))
sketch7.addConstraint(Sketcher.Constraint("Perpendicular", 5, 20))
sketch7.addConstraint(Sketcher.Constraint("Parallel", 18, 21))
sketch7.addConstraint(Sketcher.Constraint("Parallel", 20, 23))
sketch7.addConstraint(Sketcher.Constraint("Parallel", 24, 27))
sketch7.addConstraint(Sketcher.Constraint("Parallel", 25, 28))
sketch7.addConstraint(Sketcher.Constraint("Parallel", 26, 29))
sketch7.addConstraint(Sketcher.Constraint("Horizontal", 19, 2, 21, 2))
sketch7.addConstraint(Sketcher.Constraint("Horizontal", 18, 2, 22, 2))
sketch7.addConstraint(Sketcher.Constraint("Vertical", 1, 2, 3, 2))
sketch7.addConstraint(Sketcher.Constraint("Equal", 4, 19))
sketch7.addConstraint(Sketcher.Constraint("Equal", 5, 6))
sketch7.addConstraint(Sketcher.Constraint("Equal", 6, 7))
sketch7.addConstraint(Sketcher.Constraint("Equal", 7, 8))
sketch7.addConstraint(Sketcher.Constraint("Equal", 8, 9))
sketch7.addConstraint(Sketcher.Constraint("Equal", 11, 12))
sketch7.addConstraint(Sketcher.Constraint("Equal", 12, 13))
sketch7.addConstraint(Sketcher.Constraint("Equal", 13, 14))
sketch7.addConstraint(Sketcher.Constraint("Equal", 14, 15))
sketch7.addConstraint(Sketcher.Constraint("Equal", 17, 18))
sketch7.addConstraint(Sketcher.Constraint("Equal", 23, 24))
sketch7.addConstraint(Sketcher.Constraint("Equal", 24, 25))
sketch7.addConstraint(Sketcher.Constraint("Equal", 25, 26))
sketch7.addConstraint(Sketcher.Constraint("Equal", 26, 27))
sketch7.addConstraint(Sketcher.Constraint("Angle", 0, Q("120 deg")))
sketch7.addConstraint(Sketcher.Constraint("DistanceY", 3, 2, 1, 2, 8.5))
sketch7.addConstraint(Sketcher.Constraint("DistanceY", -1, 1, 0, 2, 44.855))
sketch7.addConstraint(Sketcher.Constraint("DistanceX", 18, 2, -1, 1, 36.355))
sketch7.addConstraint(Sketcher.Constraint("DistanceX", 8, 2, 6, 2, 8.235999))
sketch7.addConstraint(Sketcher.Constraint("DistanceY", -1, 1, 13, 2, 33.401498))
sketch7.addConstraint(Sketcher.Constraint("DistanceX", -1, 1, 14, 2, 25.3742))
sketch7.addConstraint(Sketcher.Constraint("DistanceX", 6, 2, 4, 2, 27.6546))
sketch7.addConstraint(Sketcher.Constraint("DistanceY", 26, 2, 17, 2, 22.5707))
sketch7.addConstraint(Sketcher.Constraint("DistanceX", 1, 2, 1, 1, 4.907477))
sketch7.addConstraint(Sketcher.Constraint("DistanceY", -1, 1, 6, 2, 32.14059))
sketch7.addConstraint(Sketcher.Constraint("DistanceX", 7, 2, -1, 1, 29.92565))
sketch7.addConstraint(Sketcher.Constraint("DistanceX", 9, 2, -1, 1, 32.22328))
sketch7.addConstraint(Sketcher.Constraint("DistanceY", -1, 1, 17, 2, 25.114579))
sketch7.addConstraint(Sketcher.Constraint("DistanceY", -1, 1, 24, 2, 2.362481))
sketch7.addConstraint(Sketcher.Constraint("DistanceX", -1, 1, 25, 2, 40.70973))
sketch7.addConstraint(Sketcher.Constraint("DistanceY", -1, 1, 25, 2, 4.90636))
sketch7.addConstraint(Sketcher.Constraint("DistanceY", 27, 2, -1, 1, 2.362481))
sketch7.addConstraint(Sketcher.Constraint("DistanceX", 5, 2, 12, 2, 28.589049))
sketch7.addConstraint(Sketcher.Constraint("DistanceX", 13, 2, 12, 2, 3.337871))
pocket6 = body.newObject("PartDesign::Pocket", "Pocket005")
pocket6.Profile = sketch7
pocket6.Length = 6

# Sketch on XZ plane
sketch8 = body.newObject("Sketcher::SketchObject", "Sketch007")
sketch8.AttachmentSupport = (doc.getObject("XZ_Plane"), [""])
sketch8.MapMode = "FlatFace"
sketch8.AttachmentOffset = App.Placement(V(0, 0, 87.5), App.Rotation())
sketch8.addGeometry(Part.LineSegment(V(-21, 120, 0), V(21, 120, 0)), False)
sketch8.addGeometry(Part.LineSegment(V(21, 120, 0), V(21, 47, 0)), False)
sketch8.addGeometry(Part.ArcOfCircle(Part.Circle(V(16, 47, 0), V(0, 0, 1), 5), math.radians(-90), math.radians(0)), False)
sketch8.addGeometry(Part.LineSegment(V(16, 42, 0), V(-16, 42, 0)), False)
sketch8.addGeometry(Part.ArcOfCircle(Part.Circle(V(-16, 47, 0), V(0, 0, 1), 5), math.radians(180), math.radians(270)), False)
sketch8.addGeometry(Part.LineSegment(V(-21, 47, 0), V(-21, 120, 0)), False)
sketch8.addConstraint(Sketcher.Constraint("Coincident", 0, 2, 1, 1))
sketch8.addConstraint(Sketcher.Constraint("Tangent", 1, 2, 2, 2))
sketch8.addConstraint(Sketcher.Constraint("Tangent", 2, 1, 3, 1))
sketch8.addConstraint(Sketcher.Constraint("Tangent", 3, 2, 4, 2))
sketch8.addConstraint(Sketcher.Constraint("Tangent", 4, 1, 5, 1))
sketch8.addConstraint(Sketcher.Constraint("Coincident", 5, 2, 0, 1))
sketch8.addConstraint(Sketcher.Constraint("Horizontal", 0))
sketch8.addConstraint(Sketcher.Constraint("Vertical", 1))
sketch8.addConstraint(Sketcher.Constraint("Horizontal", 3))
sketch8.addConstraint(Sketcher.Constraint("Vertical", 5))
sketch8.addConstraint(Sketcher.Constraint("Equal", 2, 4))
sketch8.addConstraint(Sketcher.Constraint("Radius", 2, 5.0))
sketch8.addConstraint(Sketcher.Constraint("DistanceX", 0, 1, 0, 2, 42.0))
sketch8.addConstraint(Sketcher.Constraint("DistanceY", 1, 2, 1, 1, 73.0))
sketch8.addConstraint(Sketcher.Constraint("DistanceX", -1, 1, 2, 3, 16.0))
sketch8.addConstraint(Sketcher.Constraint("DistanceY", -1, 1, 2, 3, 47.0))
pocket7 = body.newObject("PartDesign::Pocket", "Pocket006")
pocket7.Profile = sketch8
pocket7.Length = 6
pocket7.Reversed = True
doc.recompute()

fillet = body.newObject("PartDesign::Fillet", "Fillet")
fillet.Base = (pocket7, edges_at(pocket7, [
    (21, -91, 64),
    (19.536, -91, 43.464),
    (0, -91, 42),
    (-19.536, -91, 43.464),
    (-21, -91, 64),
    (-21, -87.5, 64),
    (21, -87.5, 64),
    (19.536, -87.5, 43.464),
    (0, -87.5, 42),
    (-19.536, -87.5, 43.464),
]))
fillet.Radius = 1

# Sketch on XY plane
sketch9 = body.newObject("Sketcher::SketchObject", "Sketch008")
sketch9.AttachmentSupport = (doc.getObject("XY_Plane"), [""])
sketch9.MapMode = "FlatFace"
sketch9.addGeometry(Part.Circle(V(0, 42.5, 0), V(0, 0, 1), 3), False)
sketch9.addGeometry(Part.Circle(V(42.5, 0, 0), V(0, 0, 1), 3), False)
sketch9.addGeometry(Part.Circle(V(-42.5, 0, 0), V(0, 0, 1), 3), False)
sketch9.addGeometry(Part.Circle(V(-42.5, -38.8, 0), V(0, 0, 1), 3), False)
sketch9.addGeometry(Part.Circle(V(42.5, -38.8, 0), V(0, 0, 1), 3), False)
sketch9.addGeometry(Part.Circle(V(42.5, -135, 0), V(0, 0, 1), 3), False)
sketch9.addGeometry(Part.Circle(V(-42.5, -135, 0), V(0, 0, 1), 3), False)
sketch9.addConstraint(Sketcher.Constraint("Equal", 0, 1))
sketch9.addConstraint(Sketcher.Constraint("Equal", 1, 2))
sketch9.addConstraint(Sketcher.Constraint("Equal", 2, 3))
sketch9.addConstraint(Sketcher.Constraint("Equal", 3, 4))
sketch9.addConstraint(Sketcher.Constraint("Equal", 4, 5))
sketch9.addConstraint(Sketcher.Constraint("Equal", 5, 6))
sketch9.addConstraint(Sketcher.Constraint("Symmetric", 1, 3, 2, 3, -1, 1))
sketch9.addConstraint(Sketcher.Constraint("Symmetric", 3, 3, 4, 3, -2))
sketch9.addConstraint(Sketcher.Constraint("Symmetric", 5, 3, 6, 3, -2))
sketch9.addConstraint(Sketcher.Constraint("PointOnObject", 0, 3, -2))
sketch9.addConstraint(Sketcher.Constraint("PointOnObject", 1, 3, -1))
sketch9.addConstraint(Sketcher.Constraint("Vertical", 2, 3, 3, 3))
sketch9.addConstraint(Sketcher.Constraint("Vertical", 4, 3, 5, 3))
sketch9.addConstraint(Sketcher.Constraint("Diameter", 0, 6.0))
sketch9.addConstraint(Sketcher.Constraint("DistanceY", 5, 3, -1, 1, 135.0))
sketch9.addConstraint(Sketcher.Constraint("DistanceX", 2, 3, 1, 3, 85.0))
sketch9.addConstraint(Sketcher.Constraint("DistanceY", -1, 1, 0, 3, 42.5))
sketch9.addConstraint(Sketcher.Constraint("DistanceY", 3, 3, -1, 1, 38.75))
pocket8 = body.newObject("PartDesign::Pocket", "Pocket007")
pocket8.Profile = sketch9
pocket8.Length = 71
pocket8.Reversed = True

# Sketch on YZ plane
sketch10 = body.newObject("Sketcher::SketchObject", "Sketch009")
sketch10.AttachmentSupport = (doc.getObject("YZ_Plane"), [""])
sketch10.MapMode = "FlatFace"
sketch10.AttachmentOffset = App.Placement(V(0, 0, 50), App.Rotation())
sketch10.addGeometry(Part.LineSegment(V(-103, 22, 0), V(-123, 22, 0)), False)
sketch10.addGeometry(Part.LineSegment(V(-123, 22, 0), V(-123, 10, 0)), False)
sketch10.addGeometry(Part.LineSegment(V(-123, 10, 0), V(-103, 10, 0)), False)
sketch10.addGeometry(Part.LineSegment(V(-103, 10, 0), V(-103, 22, 0)), False)
sketch10.addConstraint(Sketcher.Constraint("Coincident", 0, 2, 1, 1))
sketch10.addConstraint(Sketcher.Constraint("Coincident", 1, 2, 2, 1))
sketch10.addConstraint(Sketcher.Constraint("Coincident", 2, 2, 3, 1))
sketch10.addConstraint(Sketcher.Constraint("Coincident", 3, 2, 0, 1))
sketch10.addConstraint(Sketcher.Constraint("Horizontal", 0))
sketch10.addConstraint(Sketcher.Constraint("Vertical", 1))
sketch10.addConstraint(Sketcher.Constraint("Horizontal", 2))
sketch10.addConstraint(Sketcher.Constraint("Vertical", 3))
sketch10.addConstraint(Sketcher.Constraint("DistanceX", 0, 2, 0, 1, 20.0))
sketch10.addConstraint(Sketcher.Constraint("DistanceY", 1, 2, 1, 1, 12.5))
sketch10.addConstraint(Sketcher.Constraint("DistanceY", -1, 1, 1, 2, 10.0))
sketch10.addConstraint(Sketcher.Constraint("DistanceX", 0, 2, -1, 1, 122.839909))
pocket9 = body.newObject("PartDesign::Pocket", "Pocket008")
pocket9.Profile = sketch10
pocket9.Length = 100

doc.recompute()
